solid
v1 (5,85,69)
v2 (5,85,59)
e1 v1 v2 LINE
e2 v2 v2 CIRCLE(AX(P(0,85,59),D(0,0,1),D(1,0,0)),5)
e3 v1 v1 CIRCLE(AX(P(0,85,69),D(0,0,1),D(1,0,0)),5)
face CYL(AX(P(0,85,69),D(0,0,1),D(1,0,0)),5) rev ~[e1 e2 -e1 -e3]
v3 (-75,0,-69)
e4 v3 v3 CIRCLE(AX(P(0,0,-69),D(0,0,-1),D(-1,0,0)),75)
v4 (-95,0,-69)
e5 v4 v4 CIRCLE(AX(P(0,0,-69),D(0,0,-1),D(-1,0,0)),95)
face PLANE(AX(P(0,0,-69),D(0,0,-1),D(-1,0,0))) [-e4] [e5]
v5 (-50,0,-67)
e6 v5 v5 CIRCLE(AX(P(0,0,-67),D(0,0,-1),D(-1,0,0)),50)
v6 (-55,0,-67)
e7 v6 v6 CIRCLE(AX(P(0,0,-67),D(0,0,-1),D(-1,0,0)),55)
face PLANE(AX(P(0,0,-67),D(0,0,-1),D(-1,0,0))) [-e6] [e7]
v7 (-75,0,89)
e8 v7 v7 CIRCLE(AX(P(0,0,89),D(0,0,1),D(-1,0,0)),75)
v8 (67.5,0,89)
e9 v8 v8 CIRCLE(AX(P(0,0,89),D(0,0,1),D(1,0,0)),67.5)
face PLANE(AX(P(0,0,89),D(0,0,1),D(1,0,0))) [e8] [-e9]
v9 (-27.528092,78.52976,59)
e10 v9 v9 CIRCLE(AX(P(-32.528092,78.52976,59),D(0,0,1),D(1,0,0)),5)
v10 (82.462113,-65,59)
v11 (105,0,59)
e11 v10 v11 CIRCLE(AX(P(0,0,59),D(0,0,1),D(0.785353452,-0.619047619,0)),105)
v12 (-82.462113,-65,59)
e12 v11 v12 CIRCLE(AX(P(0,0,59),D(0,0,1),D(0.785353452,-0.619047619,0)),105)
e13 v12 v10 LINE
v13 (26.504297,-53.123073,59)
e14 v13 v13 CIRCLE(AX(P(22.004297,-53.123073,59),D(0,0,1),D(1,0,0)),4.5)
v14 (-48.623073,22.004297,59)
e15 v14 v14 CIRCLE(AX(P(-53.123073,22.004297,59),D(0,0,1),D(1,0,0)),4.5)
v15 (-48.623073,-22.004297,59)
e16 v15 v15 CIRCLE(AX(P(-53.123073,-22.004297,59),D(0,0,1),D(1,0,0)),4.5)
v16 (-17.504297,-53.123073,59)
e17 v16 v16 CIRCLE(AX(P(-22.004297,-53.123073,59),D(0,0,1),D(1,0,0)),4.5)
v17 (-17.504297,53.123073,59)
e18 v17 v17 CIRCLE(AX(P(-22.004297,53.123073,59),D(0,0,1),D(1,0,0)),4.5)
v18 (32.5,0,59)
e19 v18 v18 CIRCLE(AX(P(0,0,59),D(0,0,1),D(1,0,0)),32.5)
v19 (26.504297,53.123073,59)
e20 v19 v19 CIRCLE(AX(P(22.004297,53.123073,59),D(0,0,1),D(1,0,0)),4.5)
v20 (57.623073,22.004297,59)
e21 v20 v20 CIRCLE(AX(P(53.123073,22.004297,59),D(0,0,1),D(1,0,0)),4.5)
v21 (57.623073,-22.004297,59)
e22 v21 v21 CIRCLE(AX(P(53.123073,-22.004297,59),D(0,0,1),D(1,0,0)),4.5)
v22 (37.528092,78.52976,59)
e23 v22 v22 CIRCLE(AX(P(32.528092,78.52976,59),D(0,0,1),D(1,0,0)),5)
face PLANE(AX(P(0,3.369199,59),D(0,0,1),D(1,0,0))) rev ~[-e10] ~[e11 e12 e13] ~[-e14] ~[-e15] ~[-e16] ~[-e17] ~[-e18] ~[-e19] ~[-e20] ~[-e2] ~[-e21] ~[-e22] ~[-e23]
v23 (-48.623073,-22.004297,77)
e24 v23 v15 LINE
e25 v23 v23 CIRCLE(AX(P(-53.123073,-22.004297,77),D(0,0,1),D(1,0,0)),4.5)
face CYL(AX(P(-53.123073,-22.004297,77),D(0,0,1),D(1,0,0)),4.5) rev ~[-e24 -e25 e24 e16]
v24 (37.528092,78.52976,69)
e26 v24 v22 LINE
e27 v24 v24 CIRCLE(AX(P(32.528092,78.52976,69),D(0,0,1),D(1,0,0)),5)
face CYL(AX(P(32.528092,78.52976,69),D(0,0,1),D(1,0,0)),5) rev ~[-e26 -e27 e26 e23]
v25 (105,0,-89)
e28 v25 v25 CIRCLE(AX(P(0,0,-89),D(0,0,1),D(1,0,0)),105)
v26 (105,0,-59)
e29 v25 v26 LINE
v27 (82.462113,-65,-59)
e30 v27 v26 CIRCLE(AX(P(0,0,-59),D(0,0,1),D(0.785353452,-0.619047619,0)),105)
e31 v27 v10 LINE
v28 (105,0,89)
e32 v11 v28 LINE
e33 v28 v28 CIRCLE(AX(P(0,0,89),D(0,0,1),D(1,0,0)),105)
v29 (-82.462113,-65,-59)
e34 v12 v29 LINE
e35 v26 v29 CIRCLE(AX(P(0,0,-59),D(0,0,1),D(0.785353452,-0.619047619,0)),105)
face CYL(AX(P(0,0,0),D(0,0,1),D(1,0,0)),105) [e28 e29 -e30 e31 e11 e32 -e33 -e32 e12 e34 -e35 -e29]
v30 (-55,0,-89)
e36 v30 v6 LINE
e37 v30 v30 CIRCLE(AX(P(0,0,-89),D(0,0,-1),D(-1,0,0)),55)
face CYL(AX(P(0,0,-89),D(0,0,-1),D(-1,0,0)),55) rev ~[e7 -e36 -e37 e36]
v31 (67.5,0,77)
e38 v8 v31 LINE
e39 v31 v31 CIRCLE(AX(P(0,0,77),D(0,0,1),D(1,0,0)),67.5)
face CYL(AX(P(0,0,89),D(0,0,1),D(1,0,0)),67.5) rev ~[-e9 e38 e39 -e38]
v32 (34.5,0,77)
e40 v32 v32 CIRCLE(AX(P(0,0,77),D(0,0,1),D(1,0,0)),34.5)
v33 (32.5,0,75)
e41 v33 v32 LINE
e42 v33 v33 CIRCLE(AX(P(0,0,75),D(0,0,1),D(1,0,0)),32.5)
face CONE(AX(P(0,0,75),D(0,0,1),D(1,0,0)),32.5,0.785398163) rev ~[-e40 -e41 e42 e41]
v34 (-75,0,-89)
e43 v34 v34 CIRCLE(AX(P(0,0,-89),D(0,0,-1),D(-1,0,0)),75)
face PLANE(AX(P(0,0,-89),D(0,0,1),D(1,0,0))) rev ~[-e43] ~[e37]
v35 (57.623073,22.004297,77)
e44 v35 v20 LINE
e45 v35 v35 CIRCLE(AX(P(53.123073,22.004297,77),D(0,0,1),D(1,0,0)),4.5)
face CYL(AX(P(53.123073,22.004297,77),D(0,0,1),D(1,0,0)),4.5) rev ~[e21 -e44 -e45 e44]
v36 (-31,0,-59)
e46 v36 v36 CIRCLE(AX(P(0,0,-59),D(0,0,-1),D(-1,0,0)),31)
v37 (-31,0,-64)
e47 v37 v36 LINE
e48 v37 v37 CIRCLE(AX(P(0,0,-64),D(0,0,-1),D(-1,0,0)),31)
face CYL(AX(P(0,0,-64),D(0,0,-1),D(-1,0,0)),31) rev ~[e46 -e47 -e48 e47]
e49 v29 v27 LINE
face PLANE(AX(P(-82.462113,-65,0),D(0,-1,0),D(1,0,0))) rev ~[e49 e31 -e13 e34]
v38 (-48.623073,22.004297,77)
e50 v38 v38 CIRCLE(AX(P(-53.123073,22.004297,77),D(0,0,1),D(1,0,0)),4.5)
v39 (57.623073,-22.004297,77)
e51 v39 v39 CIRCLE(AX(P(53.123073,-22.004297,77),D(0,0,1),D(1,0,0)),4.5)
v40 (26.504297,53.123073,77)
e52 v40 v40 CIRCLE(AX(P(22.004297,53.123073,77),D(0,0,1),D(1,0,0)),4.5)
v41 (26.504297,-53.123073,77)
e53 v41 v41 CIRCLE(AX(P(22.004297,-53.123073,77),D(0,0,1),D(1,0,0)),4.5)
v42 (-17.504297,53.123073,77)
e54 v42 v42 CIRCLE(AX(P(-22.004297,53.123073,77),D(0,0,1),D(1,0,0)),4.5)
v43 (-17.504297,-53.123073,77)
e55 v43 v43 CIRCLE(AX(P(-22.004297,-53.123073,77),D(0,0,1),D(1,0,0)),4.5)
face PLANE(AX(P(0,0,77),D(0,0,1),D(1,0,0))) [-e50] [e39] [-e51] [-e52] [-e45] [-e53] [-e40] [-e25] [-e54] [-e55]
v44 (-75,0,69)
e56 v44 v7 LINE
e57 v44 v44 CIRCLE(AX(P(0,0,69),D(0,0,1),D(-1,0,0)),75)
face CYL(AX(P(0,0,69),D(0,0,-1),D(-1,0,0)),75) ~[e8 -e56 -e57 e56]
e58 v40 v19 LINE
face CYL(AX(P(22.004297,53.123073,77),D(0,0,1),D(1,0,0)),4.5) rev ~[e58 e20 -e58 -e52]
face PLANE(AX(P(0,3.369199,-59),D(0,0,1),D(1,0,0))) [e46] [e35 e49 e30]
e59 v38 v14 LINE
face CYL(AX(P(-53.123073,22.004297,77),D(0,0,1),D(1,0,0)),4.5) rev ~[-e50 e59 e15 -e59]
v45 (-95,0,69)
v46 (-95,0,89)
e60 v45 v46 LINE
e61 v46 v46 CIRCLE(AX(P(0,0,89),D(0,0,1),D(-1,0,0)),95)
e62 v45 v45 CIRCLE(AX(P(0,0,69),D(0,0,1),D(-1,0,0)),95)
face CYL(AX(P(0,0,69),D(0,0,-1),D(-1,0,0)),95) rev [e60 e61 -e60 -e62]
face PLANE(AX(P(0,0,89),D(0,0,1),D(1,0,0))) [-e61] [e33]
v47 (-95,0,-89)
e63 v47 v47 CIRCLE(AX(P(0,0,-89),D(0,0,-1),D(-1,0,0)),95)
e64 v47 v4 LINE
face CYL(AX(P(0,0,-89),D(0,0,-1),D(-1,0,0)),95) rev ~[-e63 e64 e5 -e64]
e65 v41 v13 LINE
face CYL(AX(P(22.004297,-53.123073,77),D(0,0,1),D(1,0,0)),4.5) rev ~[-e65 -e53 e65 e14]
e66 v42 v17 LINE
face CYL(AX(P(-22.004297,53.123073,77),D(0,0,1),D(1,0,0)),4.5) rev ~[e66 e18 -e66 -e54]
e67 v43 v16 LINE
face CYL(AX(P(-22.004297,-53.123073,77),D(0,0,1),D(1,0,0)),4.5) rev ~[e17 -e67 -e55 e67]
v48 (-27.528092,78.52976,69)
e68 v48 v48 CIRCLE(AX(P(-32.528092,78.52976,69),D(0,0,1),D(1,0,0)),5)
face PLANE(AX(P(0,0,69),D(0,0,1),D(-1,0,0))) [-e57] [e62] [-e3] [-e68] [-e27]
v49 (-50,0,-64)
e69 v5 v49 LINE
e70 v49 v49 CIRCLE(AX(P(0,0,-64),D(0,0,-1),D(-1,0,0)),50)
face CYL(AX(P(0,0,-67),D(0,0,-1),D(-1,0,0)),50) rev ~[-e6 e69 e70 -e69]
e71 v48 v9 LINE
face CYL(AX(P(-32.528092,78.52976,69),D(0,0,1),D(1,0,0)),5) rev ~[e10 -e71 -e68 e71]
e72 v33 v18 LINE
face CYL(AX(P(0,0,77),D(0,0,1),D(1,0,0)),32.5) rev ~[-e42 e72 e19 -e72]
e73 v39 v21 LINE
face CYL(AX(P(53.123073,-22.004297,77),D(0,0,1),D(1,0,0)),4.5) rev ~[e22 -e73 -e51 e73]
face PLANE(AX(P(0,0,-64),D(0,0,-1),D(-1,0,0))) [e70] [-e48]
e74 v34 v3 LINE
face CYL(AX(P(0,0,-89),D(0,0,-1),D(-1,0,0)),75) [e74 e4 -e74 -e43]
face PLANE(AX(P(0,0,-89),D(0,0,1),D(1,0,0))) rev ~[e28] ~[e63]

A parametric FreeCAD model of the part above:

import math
import FreeCAD as App
import Part
import Sketcher
Q = App.Units.Quantity


def edges_at(feature, points):
    """Names of the edges that pass closest to the given points."""
    edges = feature.Shape.Edges
    near = lambda p: min(range(len(edges)), key=lambda i: edges[i].distToShape(Part.Vertex(*p))[0])
    return sorted({f"Edge{near(p) + 1}" for p in points})

doc = App.newDocument("Part")
body = doc.addObject("PartDesign::Body", "Body")

# Sketch on XY plane
sketch1 = doc.addObject("Sketcher::SketchObject", "Sketch")
body.addObject(sketch1)
sketch1.AttachmentSupport = (doc.XY_Plane, [""])
sketch1.MapMode = "FlatFace"
sketch1.addGeometry(Part.Circle(App.Vector(0, 0, 0), App.Vector(0, 0, 1), 105), False)
sketch1.addConstraint([
    Sketcher.Constraint("Coincident", 0, 3, -1, 1),
    Sketcher.Constraint("Diameter", 0, Q("210 mm")),
])
pad1 = doc.addObject("PartDesign::Pad", "Pad")
body.addObject(pad1)
pad1.Profile = sketch1
pad1.Length = 178
pad1.Midplane = True

# Sketch on XY plane
sketch2 = doc.addObject("Sketcher::SketchObject", "Sketch001")
body.addObject(sketch2)
sketch2.AttachmentSupport = (doc.XY_Plane, [""])
sketch2.MapMode = "FlatFace"
sketch2.addGeometry([
    Part.LineSegment(App.Vector(-82.462113, -65, 0), App.Vector(82.462113, -65, 0)),
    Part.ArcOfCircle(Part.Circle(App.Vector(0, 0, 0), App.Vector(0, 0, 1), 105), math.radians(-38.24662), math.radians(218.24662)),
], False)
sketch2.addConstraint([
    Sketcher.Constraint("Coincident", 0, 1, 1, 2),
    Sketcher.Constraint("Coincident", 1, 1, 0, 2),
    Sketcher.Constraint("Horizontal", 0),
    Sketcher.Constraint("Coincident", 1, 3, -1, 1),
    Sketcher.Constraint("Radius", 1, Q("105 mm")),
    Sketcher.Constraint("DistanceY", 0, 1, -1, 1, Q("65 mm")),
])
pocket1 = doc.addObject("PartDesign::Pocket", "Pocket")
body.addObject(pocket1)
pocket1.Profile = sketch2
pocket1.Length = 118
pocket1.Midplane = True

# Sketch on XY plane
sketch3 = doc.addObject("Sketcher::SketchObject", "Sketch002")
body.addObject(sketch3)
sketch3.AttachmentSupport = (doc.XY_Plane, [""])
sketch3.MapMode = "FlatFace"
sketch3.AttachmentOffset = App.Placement(App.Vector(0, 0, -89), App.Rotation())
sketch3.addGeometry([
    Part.Circle(App.Vector(0, 0, 0), App.Vector(0, 0, 1), 95),
    Part.Circle(App.Vector(0, 0, 0), App.Vector(0, 0, 1), 75),
], False)
sketch3.addConstraint([
    Sketcher.Constraint("Coincident", 0, 3, -1, 1),
    Sketcher.Constraint("Coincident", 1, 3, -1, 1),
    Sketcher.Constraint("Diameter", 0, Q("190 mm")),
    Sketcher.Constraint("Diameter", 1, Q("150 mm")),
])
pocket2 = doc.addObject("PartDesign::Pocket", "Pocket001")
body.addObject(pocket2)
pocket2.Profile = sketch3
pocket2.Length = 20
pocket2.Reversed = True

# Sketch on XY plane
sketch4 = doc.addObject("Sketcher::SketchObject", "Sketch003")
body.addObject(sketch4)
sketch4.AttachmentSupport = (doc.XY_Plane, [""])
sketch4.MapMode = "FlatFace"
sketch4.AttachmentOffset = App.Placement(App.Vector(0, 0, -89), App.Rotation())
sketch4.addGeometry(Part.Circle(App.Vector(0, 0, 0), App.Vector(0, 0, 1), 55), False)
sketch4.addConstraint([
    Sketcher.Constraint("Coincident", 0, 3, -1, 1),
    Sketcher.Constraint("Diameter", 0, Q("110 mm")),
])
pocket3 = doc.addObject("PartDesign::Pocket", "Pocket002")
body.addObject(pocket3)
pocket3.Profile = sketch4
pocket3.Length = 22
pocket3.Reversed = True

# Sketch on XY plane
sketch5 = doc.addObject("Sketcher::SketchObject", "Sketch004")
body.addObject(sketch5)
sketch5.AttachmentSupport = (doc.XY_Plane, [""])
sketch5.MapMode = "FlatFace"
sketch5.AttachmentOffset = App.Placement(App.Vector(0, 0, -67), App.Rotation())
sketch5.addGeometry(Part.Circle(App.Vector(0, 0, 0), App.Vector(0, 0, 1), 50), False)
sketch5.addConstraint([
    Sketcher.Constraint("Coincident", 0, 3, -1, 1),
    Sketcher.Constraint("Diameter", 0, Q("100 mm")),
])
pocket4 = doc.addObject("PartDesign::Pocket", "Pocket003")
body.addObject(pocket4)
pocket4.Profile = sketch5
pocket4.Length = 3
pocket4.Reversed = True

# Sketch on XY plane
sketch6 = doc.addObject("Sketcher::SketchObject", "Sketch005")
body.addObject(sketch6)
sketch6.AttachmentSupport = (doc.XY_Plane, [""])
sketch6.MapMode = "FlatFace"
sketch6.AttachmentOffset = App.Placement(App.Vector(0, 0, -64), App.Rotation())
sketch6.addGeometry(Part.Circle(App.Vector(0, 0, 0), App.Vector(0, 0, 1), 31), False)
sketch6.addConstraint([
    Sketcher.Constraint("Coincident", 0, 3, -1, 1),
    Sketcher.Constraint("Diameter", 0, Q("62 mm")),
])
pocket5 = doc.addObject("PartDesign::Pocket", "Pocket004")
body.addObject(pocket5)
pocket5.Profile = sketch6
pocket5.Type = "UpToFirst"
pocket5.Reversed = True

# Sketch on XY plane
sketch7 = doc.addObject("Sketcher::SketchObject", "Sketch006")
body.addObject(sketch7)
sketch7.AttachmentSupport = (doc.XY_Plane, [""])
sketch7.MapMode = "FlatFace"
sketch7.AttachmentOffset = App.Placement(App.Vector(0, 0, 69), App.Rotation())
sketch7.addGeometry([
    Part.Circle(App.Vector(0, 0, 0), App.Vector(0, 0, 1), 95),
    Part.Circle(App.Vector(0, 0, 0), App.Vector(0, 0, 1), 75),
], False)
sketch7.addConstraint([
    Sketcher.Constraint("Coincident", 0, 3, -1, 1),
    Sketcher.Constraint("Coincident", 1, 3, -1, 1),
    Sketcher.Constraint("Diameter", 0, Q("190 mm")),
    Sketcher.Constraint("Diameter", 1, Q("150 mm")),
])
pocket6 = doc.addObject("PartDesign::Pocket", "Pocket005")
body.addObject(pocket6)
pocket6.Profile = sketch7
pocket6.Length = 20
pocket6.Reversed = True

# Sketch on XY plane
sketch8 = doc.addObject("Sketcher::SketchObject", "Sketch007")
body.addObject(sketch8)
sketch8.AttachmentSupport = (doc.XY_Plane, [""])
sketch8.MapMode = "FlatFace"
sketch8.AttachmentOffset = App.Placement(App.Vector(0, 0, 89), App.Rotation())
sketch8.addGeometry(Part.Circle(App.Vector(0, 0, 0), App.Vector(0, 0, 1), 67.5), False)
sketch8.addConstraint([
    Sketcher.Constraint("Coincident", 0, 3, -1, 1),
    Sketcher.Constraint("Diameter", 0, Q("135 mm")),
])
pocket7 = doc.addObject("PartDesign::Pocket", "Pocket006")
body.addObject(pocket7)
pocket7.Profile = sketch8
pocket7.Length = 12

# Sketch on XY plane
sketch9 = doc.addObject("Sketcher::SketchObject", "Sketch008")
body.addObject(sketch9)
sketch9.AttachmentSupport = (doc.XY_Plane, [""])
sketch9.MapMode = "FlatFace"
sketch9.AttachmentOffset = App.Placement(App.Vector(0, 0, 77), App.Rotation())
sketch9.addGeometry(Part.Circle(App.Vector(0, 0, 0), App.Vector(0, 0, 1), 32.5), False)
sketch9.addConstraint([
    Sketcher.Constraint("Coincident", 0, 3, -1, 1),
    Sketcher.Constraint("Diameter", 0, Q("65 mm")),
])
pocket8 = doc.addObject("PartDesign::Pocket", "Pocket007")
body.addObject(pocket8)
pocket8.Profile = sketch9
pocket8.Type = "UpToFirst"
doc.recompute()

chamfer = doc.addObject("PartDesign::Chamfer", "Chamfer")
body.addObject(chamfer)
chamfer.Base = (pocket8, edges_at(pocket8, [(-32.5, 0, 77)]))
chamfer.Size = 2

# Sketch on XY plane
sketch10 = doc.addObject("Sketcher::SketchObject", "Sketch009")
body.addObject(sketch10)
sketch10.AttachmentSupport = (doc.XY_Plane, [""])
sketch10.MapMode = "FlatFace"
sketch10.AttachmentOffset = App.Placement(App.Vector(0, 0, 69), App.Rotation())
sketch10.addGeometry(Part.Circle(App.Vector(0, 85, 0), App.Vector(0, 0, 1), 5), False)
sketch10.addConstraint([
    Sketcher.Constraint("PointOnObject", 0, 3, -2),
    Sketcher.Constraint("Diameter", 0, Q("10 mm")),
    Sketcher.Constraint("DistanceY", -1, 1, 0, 3, Q("85 mm")),
])
pocket9 = doc.addObject("PartDesign::Pocket", "Pocket008")
body.addObject(pocket9)
pocket9.Profile = sketch10
pocket9.Type = "UpToFirst"

# Sketch on XY plane
sketch11 = doc.addObject("Sketcher::SketchObject", "Sketch010")
body.addObject(sketch11)
sketch11.AttachmentSupport = (doc.XY_Plane, [""])
sketch11.MapMode = "FlatFace"
sketch11.AttachmentOffset = App.Placement(App.Vector(0, 0, 69), App.Rotation())
sketch11.addGeometry(Part.Circle(App.Vector(32.528092, 78.52976, 0), App.Vector(0, 0, 1), 5), False)
sketch11.addConstraint([
    Sketcher.Constraint("Diameter", 0, Q("10 mm")),
    Sketcher.Constraint("DistanceX", -1, 1, 0, 3, Q("32.528092 mm")),
    Sketcher.Constraint("DistanceY", -1, 1, 0, 3, Q("78.52976 mm")),
])
pocket10 = doc.addObject("PartDesign::Pocket", "Pocket009")
body.addObject(pocket10)
pocket10.Profile = sketch11
pocket10.Type = "UpToFirst"

# Sketch on XY plane
sketch12 = doc.addObject("Sketcher::SketchObject", "Sketch011")
body.addObject(sketch12)
sketch12.AttachmentSupport = (doc.XY_Plane, [""])
sketch12.MapMode = "FlatFace"
sketch12.AttachmentOffset = App.Placement(App.Vector(0, 0, 69), App.Rotation())
sketch12.addGeometry(Part.Circle(App.Vector(-32.528092, 78.52976, 0), App.Vector(0, 0, 1), 5), False)
sketch12.addConstraint([
    Sketcher.Constraint("Diameter", 0, Q("10 mm")),
    Sketcher.Constraint("DistanceX", 0, 3, -1, 1, Q("32.528092 mm")),
    Sketcher.Constraint("DistanceY", -1, 1, 0, 3, Q("78.52976 mm")),
])
pocket11 = doc.addObject("PartDesign::Pocket", "Pocket010")
body.addObject(pocket11)
pocket11.Profile = sketch12
pocket11.Type = "UpToFirst"

# Sketch on XY plane
sketch13 = doc.addObject("Sketcher::SketchObject", "Sketch012")
body.addObject(sketch13)
sketch13.AttachmentSupport = (doc.XY_Plane, [""])
sketch13.MapMode = "FlatFace"
sketch13.AttachmentOffset = App.Placement(App.Vector(0, 0, 77), App.Rotation())
sketch13.addGeometry(Part.Circle(App.Vector(22.004297, 53.123073, 0), App.Vector(0, 0, 1), 4.5), False)
sketch13.addConstraint([
    Sketcher.Constraint("Diameter", 0, Q("9 mm")),
    Sketcher.Constraint("DistanceX", -1, 1, 0, 3, Q("22.004297 mm")),
    Sketcher.Constraint("DistanceY", -1, 1, 0, 3, Q("53.123073 mm")),
])
pocket12 = doc.addObject("PartDesign::Pocket", "Pocket011")
body.addObject(pocket12)
pocket12.Profile = sketch13
pocket12.Type = "UpToFirst"

# Sketch on XY plane
sketch14 = doc.addObject("Sketcher::SketchObject", "Sketch013")
body.addObject(sketch14)
sketch14.AttachmentSupport = (doc.XY_Plane, [""])
sketch14.MapMode = "FlatFace"
sketch14.AttachmentOffset = App.Placement(App.Vector(0, 0, 77), App.Rotation())
sketch14.addGeometry(Part.Circle(App.Vector(53.123073, 22.004297, 0), App.Vector(0, 0, 1), 4.5), False)
sketch14.addConstraint([
    Sketcher.Constraint("Diameter", 0, Q("9 mm")),
    Sketcher.Constraint("DistanceX", -1, 1, 0, 3, Q("53.123073 mm")),
    Sketcher.Constraint("DistanceY", -1, 1, 0, 3, Q("22.004297 mm")),
])
pocket13 = doc.addObject("PartDesign::Pocket", "Pocket012")
body.addObject(pocket13)
pocket13.Profile = sketch14
pocket13.Type = "UpToFirst"

# Sketch on XY plane
sketch15 = doc.addObject("Sketcher::SketchObject", "Sketch014")
body.addObject(sketch15)
sketch15.AttachmentSupport = (doc.XY_Plane, [""])
sketch15.MapMode = "FlatFace"
sketch15.AttachmentOffset = App.Placement(App.Vector(0, 0, 77), App.Rotation())
sketch15.addGeometry(Part.Circle(App.Vector(53.123073, -22.004297, 0), App.Vector(0, 0, 1), 4.5), False)
sketch15.addConstraint([
    Sketcher.Constraint("Diameter", 0, Q("9 mm")),
    Sketcher.Constraint("DistanceX", -1, 1, 0, 3, Q("53.123073 mm")),
    Sketcher.Constraint("DistanceY", 0, 3, -1, 1, Q("22.004297 mm")),
])
pocket14 = doc.addObject("PartDesign::Pocket", "Pocket013")
body.addObject(pocket14)
pocket14.Profile = sketch15
pocket14.Type = "UpToFirst"

# Sketch on XY plane
sketch16 = doc.addObject("Sketcher::SketchObject", "Sketch015")
body.addObject(sketch16)
sketch16.AttachmentSupport = (doc.XY_Plane, [""])
sketch16.MapMode = "FlatFace"
sketch16.AttachmentOffset = App.Placement(App.Vector(0, 0, 77), App.Rotation())
sketch16.addGeometry(Part.Circle(App.Vector(22.004297, -53.123073, 0), App.Vector(0, 0, 1), 4.5), False)
sketch16.addConstraint([
    Sketcher.Constraint("Diameter", 0, Q("9 mm")),
    Sketcher.Constraint("DistanceX", -1, 1, 0, 3, Q("22.004297 mm")),
    Sketcher.Constraint("DistanceY", 0, 3, -1, 1, Q("53.123073 mm")),
])
pocket15 = doc.addObject("PartDesign::Pocket", "Pocket014")
body.addObject(pocket15)
pocket15.Profile = sketch16
pocket15.Type = "UpToFirst"

# Sketch on XY plane
sketch17 = doc.addObject("Sketcher::SketchObject", "Sketch016")
body.addObject(sketch17)
sketch17.AttachmentSupport = (doc.XY_Plane, [""])
sketch17.MapMode = "FlatFace"
sketch17.AttachmentOffset = App.Placement(App.Vector(0, 0, 77), App.Rotation())
sketch17.addGeometry(Part.Circle(App.Vector(-22.004297, -53.123073, 0), App.Vector(0, 0, 1), 4.5), False)
sketch17.addConstraint([
    Sketcher.Constraint("Diameter", 0, Q("9 mm")),
    Sketcher.Constraint("DistanceX", 0, 3, -1, 1, Q("22.004297 mm")),
    Sketcher.Constraint("DistanceY", 0, 3, -1, 1, Q("53.123073 mm")),
])
pocket16 = doc.addObject("PartDesign::Pocket", "Pocket015")
body.addObject(pocket16)
pocket16.Profile = sketch17
pocket16.Type = "UpToFirst"

# Sketch on XY plane
sketch18 = doc.addObject("Sketcher::SketchObject", "Sketch017")
body.addObject(sketch18)
sketch18.AttachmentSupport = (doc.XY_Plane, [""])
sketch18.MapMode = "FlatFace"
sketch18.AttachmentOffset = App.Placement(App.Vector(0, 0, 77), App.Rotation())
sketch18.addGeometry(Part.Circle(App.Vector(-53.123073, -22.004297, 0), App.Vector(0, 0, 1), 4.5), False)
sketch18.addConstraint([
    Sketcher.Constraint("Diameter", 0, Q("9 mm")),
    Sketcher.Constraint("DistanceX", 0, 3, -1, 1, Q("53.123073 mm")),
    Sketcher.Constraint("DistanceY", 0, 3, -1, 1, Q("22.004297 mm")),
])
pocket17 = doc.addObject("PartDesign::Pocket", "Pocket016")
body.addObject(pocket17)
pocket17.Profile = sketch18
pocket17.Type = "UpToFirst"

# Sketch on XY plane
sketch19 = doc.addObject("Sketcher::SketchObject", "Sketch018")
body.addObject(sketch19)
sketch19.AttachmentSupport = (doc.XY_Plane, [""])
sketch19.MapMode = "FlatFace"
sketch19.AttachmentOffset = App.Placement(App.Vector(0, 0, 77), App.Rotation())
sketch19.addGeometry(Part.Circle(App.Vector(-53.123073, 22.004297, 0), App.Vector(0, 0, 1), 4.5), False)
sketch19.addConstraint([
    Sketcher.Constraint("Diameter", 0, Q("9 mm")),
    Sketcher.Constraint("DistanceX", 0, 3, -1, 1, Q("53.123073 mm")),
    Sketcher.Constraint("DistanceY", -1, 1, 0, 3, Q("22.004297 mm")),
])
pocket18 = doc.addObject("PartDesign::Pocket", "Pocket017")
body.addObject(pocket18)
pocket18.Profile = sketch19
pocket18.Type = "UpToFirst"

# Sketch on XY plane
sketch20 = doc.addObject("Sketcher::SketchObject", "Sketch019")
body.addObject(sketch20)
sketch20.AttachmentSupport = (doc.XY_Plane, [""])
sketch20.MapMode = "FlatFace"
sketch20.AttachmentOffset = App.Placement(App.Vector(0, 0, 77), App.Rotation())
sketch20.addGeometry(Part.Circle(App.Vector(-22.004297, 53.123073, 0), App.Vector(0, 0, 1), 4.5), False)
sketch20.addConstraint([
    Sketcher.Constraint("Diameter", 0, Q("9 mm")),
    Sketcher.Constraint("DistanceX", 0, 3, -1, 1, Q("22.004297 mm")),
    Sketcher.Constraint("DistanceY", -1, 1, 0, 3, Q("53.123073 mm")),
])
pocket19 = doc.addObject("PartDesign::Pocket", "Pocket018")
body.addObject(pocket19)
pocket19.Profile = sketch20
pocket19.Type = "UpToFirst"

doc.recompute()
